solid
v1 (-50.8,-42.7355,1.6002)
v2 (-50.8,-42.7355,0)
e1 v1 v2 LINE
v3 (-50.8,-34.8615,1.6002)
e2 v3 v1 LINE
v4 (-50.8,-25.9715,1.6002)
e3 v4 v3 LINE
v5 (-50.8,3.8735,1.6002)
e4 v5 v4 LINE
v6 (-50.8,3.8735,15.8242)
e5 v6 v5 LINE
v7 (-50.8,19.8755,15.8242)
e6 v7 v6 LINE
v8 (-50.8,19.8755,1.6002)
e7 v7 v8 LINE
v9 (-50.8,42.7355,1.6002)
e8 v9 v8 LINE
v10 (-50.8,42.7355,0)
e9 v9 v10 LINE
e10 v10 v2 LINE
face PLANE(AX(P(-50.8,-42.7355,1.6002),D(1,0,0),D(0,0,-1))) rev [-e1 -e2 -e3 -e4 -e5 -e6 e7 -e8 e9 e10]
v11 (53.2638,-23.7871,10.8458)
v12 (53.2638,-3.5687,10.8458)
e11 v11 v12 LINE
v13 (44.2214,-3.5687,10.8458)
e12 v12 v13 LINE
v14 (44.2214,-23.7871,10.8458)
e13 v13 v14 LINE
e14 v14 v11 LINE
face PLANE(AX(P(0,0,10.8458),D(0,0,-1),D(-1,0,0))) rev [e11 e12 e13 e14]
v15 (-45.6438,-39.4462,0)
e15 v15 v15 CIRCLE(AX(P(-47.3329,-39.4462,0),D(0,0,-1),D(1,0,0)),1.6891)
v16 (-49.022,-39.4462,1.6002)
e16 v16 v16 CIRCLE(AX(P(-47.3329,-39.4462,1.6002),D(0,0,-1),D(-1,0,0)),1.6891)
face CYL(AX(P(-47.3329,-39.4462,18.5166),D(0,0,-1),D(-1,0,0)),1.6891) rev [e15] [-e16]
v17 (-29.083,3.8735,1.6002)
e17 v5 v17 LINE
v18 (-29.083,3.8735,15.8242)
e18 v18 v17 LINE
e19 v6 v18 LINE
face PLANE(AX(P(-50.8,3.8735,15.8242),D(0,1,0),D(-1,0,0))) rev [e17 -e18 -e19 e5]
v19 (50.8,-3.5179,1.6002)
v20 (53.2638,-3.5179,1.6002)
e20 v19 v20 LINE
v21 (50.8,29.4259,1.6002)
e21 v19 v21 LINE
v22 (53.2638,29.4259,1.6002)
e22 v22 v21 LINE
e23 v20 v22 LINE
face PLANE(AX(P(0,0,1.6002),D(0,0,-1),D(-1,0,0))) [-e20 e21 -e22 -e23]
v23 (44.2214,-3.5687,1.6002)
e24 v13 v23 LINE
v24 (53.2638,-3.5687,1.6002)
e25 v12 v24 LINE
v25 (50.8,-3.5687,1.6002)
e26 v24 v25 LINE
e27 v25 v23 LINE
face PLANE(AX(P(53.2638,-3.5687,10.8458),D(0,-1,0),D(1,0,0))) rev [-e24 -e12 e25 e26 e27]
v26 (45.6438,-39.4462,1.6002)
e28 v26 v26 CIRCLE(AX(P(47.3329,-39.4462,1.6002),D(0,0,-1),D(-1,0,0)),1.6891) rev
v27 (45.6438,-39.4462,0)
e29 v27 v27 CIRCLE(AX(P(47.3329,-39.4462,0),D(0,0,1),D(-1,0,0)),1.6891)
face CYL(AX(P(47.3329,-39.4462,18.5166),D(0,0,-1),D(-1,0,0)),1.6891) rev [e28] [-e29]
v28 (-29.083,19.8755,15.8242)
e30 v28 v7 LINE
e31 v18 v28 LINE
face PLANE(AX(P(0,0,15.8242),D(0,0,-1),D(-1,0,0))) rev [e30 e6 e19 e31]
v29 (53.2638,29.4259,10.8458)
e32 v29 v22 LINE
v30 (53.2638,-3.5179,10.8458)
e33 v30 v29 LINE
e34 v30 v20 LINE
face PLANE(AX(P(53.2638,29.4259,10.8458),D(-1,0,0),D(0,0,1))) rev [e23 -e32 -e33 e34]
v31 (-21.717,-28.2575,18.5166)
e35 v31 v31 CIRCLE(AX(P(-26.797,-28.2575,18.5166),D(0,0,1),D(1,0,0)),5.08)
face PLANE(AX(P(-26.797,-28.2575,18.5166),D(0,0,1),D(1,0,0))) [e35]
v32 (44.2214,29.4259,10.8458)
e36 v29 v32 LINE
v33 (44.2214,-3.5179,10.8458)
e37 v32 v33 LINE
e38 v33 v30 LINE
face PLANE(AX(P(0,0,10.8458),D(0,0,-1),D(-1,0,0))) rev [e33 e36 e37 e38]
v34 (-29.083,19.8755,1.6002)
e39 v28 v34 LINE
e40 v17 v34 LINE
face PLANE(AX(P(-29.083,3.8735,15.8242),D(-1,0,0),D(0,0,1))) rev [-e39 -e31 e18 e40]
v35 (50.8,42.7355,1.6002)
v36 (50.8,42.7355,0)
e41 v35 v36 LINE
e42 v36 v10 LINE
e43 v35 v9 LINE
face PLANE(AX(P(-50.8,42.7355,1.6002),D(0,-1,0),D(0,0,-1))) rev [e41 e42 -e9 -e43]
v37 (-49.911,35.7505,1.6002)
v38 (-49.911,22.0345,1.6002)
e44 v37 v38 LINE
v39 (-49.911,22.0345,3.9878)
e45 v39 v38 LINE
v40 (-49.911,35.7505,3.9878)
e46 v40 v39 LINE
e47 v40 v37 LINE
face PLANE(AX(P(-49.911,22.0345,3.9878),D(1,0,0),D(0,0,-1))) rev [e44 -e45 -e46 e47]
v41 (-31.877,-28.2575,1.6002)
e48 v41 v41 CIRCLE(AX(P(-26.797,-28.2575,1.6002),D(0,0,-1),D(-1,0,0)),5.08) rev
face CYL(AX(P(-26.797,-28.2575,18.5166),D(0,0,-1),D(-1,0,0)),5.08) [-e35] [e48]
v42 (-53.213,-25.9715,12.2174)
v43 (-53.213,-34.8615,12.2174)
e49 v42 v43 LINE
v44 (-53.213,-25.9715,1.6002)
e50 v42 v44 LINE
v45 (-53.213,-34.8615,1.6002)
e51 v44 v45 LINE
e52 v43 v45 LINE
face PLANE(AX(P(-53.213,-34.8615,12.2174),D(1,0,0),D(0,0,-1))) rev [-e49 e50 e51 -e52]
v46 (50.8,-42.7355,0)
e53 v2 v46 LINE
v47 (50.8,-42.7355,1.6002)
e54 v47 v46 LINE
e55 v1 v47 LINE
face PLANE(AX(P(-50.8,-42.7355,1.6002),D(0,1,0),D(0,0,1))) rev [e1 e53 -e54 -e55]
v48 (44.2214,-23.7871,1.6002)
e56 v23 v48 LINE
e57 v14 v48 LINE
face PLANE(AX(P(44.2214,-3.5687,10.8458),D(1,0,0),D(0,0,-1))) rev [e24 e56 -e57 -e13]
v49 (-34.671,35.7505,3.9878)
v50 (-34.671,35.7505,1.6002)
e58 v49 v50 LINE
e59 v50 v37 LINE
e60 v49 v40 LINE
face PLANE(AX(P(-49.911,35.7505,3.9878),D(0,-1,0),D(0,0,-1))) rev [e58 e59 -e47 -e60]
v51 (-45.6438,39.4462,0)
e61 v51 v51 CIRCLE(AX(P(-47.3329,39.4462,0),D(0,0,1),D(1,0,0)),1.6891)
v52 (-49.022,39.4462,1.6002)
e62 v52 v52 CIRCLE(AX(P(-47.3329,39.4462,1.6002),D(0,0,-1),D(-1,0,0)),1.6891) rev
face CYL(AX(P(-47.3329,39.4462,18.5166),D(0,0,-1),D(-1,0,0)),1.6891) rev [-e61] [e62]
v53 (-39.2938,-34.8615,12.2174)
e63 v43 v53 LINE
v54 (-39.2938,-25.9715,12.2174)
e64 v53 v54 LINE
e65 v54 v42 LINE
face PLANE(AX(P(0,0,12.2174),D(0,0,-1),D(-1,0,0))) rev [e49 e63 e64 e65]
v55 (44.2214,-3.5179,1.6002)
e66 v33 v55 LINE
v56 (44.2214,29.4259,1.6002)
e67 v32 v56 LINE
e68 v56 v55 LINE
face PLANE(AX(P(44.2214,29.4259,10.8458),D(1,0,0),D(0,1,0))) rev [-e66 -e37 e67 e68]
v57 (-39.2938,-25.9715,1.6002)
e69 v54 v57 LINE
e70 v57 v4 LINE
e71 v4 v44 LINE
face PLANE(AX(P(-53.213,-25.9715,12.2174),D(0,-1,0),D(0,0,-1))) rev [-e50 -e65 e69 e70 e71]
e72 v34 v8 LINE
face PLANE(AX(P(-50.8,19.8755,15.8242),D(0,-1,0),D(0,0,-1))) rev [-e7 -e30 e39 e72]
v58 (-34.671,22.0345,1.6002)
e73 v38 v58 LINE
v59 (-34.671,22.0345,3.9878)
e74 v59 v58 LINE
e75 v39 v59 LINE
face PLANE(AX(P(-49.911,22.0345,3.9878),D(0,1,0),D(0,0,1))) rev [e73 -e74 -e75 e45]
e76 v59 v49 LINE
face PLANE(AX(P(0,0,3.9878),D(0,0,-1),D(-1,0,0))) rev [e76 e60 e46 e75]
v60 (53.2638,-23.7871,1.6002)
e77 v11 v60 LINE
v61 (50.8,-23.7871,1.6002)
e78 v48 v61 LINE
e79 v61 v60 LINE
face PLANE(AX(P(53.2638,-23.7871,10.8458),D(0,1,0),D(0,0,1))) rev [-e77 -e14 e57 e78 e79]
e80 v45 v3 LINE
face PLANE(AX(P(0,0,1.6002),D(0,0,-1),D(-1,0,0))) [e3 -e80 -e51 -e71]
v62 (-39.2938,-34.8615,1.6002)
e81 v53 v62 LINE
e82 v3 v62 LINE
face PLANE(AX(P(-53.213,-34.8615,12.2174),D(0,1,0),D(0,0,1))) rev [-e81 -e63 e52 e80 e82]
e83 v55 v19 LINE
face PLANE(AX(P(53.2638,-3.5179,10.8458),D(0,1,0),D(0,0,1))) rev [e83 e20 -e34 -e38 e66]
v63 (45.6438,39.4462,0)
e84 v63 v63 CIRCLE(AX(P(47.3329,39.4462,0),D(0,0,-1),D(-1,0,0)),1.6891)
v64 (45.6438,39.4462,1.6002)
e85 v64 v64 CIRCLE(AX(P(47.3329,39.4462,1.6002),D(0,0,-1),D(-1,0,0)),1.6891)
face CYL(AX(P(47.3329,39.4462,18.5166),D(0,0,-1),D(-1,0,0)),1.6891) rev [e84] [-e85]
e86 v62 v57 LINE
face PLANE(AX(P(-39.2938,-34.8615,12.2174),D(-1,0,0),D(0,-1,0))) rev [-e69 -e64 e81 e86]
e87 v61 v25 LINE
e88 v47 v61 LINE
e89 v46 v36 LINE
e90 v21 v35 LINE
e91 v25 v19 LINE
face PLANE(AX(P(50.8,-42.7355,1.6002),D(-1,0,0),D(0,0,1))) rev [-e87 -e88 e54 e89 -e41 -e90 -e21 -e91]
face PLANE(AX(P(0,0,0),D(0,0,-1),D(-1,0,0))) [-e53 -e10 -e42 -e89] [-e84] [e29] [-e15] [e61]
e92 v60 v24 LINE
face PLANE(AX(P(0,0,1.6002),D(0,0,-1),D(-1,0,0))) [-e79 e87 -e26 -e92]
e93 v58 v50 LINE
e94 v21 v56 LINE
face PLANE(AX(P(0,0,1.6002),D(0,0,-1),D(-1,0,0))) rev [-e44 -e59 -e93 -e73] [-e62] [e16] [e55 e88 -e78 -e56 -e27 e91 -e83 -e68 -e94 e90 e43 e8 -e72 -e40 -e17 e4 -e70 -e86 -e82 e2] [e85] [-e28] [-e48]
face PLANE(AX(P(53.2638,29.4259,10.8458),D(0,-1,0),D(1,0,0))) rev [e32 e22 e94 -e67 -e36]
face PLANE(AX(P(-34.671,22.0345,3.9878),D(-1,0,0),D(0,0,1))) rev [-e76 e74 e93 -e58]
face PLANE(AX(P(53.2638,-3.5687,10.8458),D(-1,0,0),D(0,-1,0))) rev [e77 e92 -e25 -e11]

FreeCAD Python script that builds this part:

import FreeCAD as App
import Part
import Sketcher
from FreeCAD import Vector
Q = App.Units.Quantity

doc = App.newDocument("Part")
params = doc.addObject("Spreadsheet::Sheet", "Params")
for row, (alias, value) in enumerate([
    ("sketch1_width", "4 in"),
    ("sketch1_height", "3.365 in"),
    ("pad1_length", "0.063 in"),
    ("sketch2_height", "0.63 in"),
    ("sketch2_width", "0.855 in"),
    ("pad2_length", "0.56 in"),
    ("sketch3_height", "0.35 in"),
    ("sketch3_width", "0.548 in"),
    ("pad3_length", "0.418 in"),
    ("sketch4_width", "0.356 in"),
    ("sketch4_height", "1.297 in"),
    ("sketch4_height2", "0.796 in"),
    ("pad4_length", "0.364 in"),
    ("sketch5_width", "0.6 in"),
    ("sketch5_height", "0.54 in"),
    ("pad5_length", "0.094 in"),
    ("sketch6_diameter", "0.4 in"),
    ("pad6_length", "0.666 in"),
    ("sketch7_diameter", "0.133 in"),
    ("sketch8_diameter", "0.133 in"),
], start=1):
    params.set(f"A{row}", alias)
    params.set(f"B{row}", "=" + value)
    params.setAlias(f"B{row}", alias)

body = doc.addObject("PartDesign::Body", "Body")

# Sketch on XY plane
sketch1 = body.newObject("Sketcher::SketchObject", "Sketch")
sketch1.AttachmentSupport = (doc.getObject("XY_Plane"), [""])
sketch1.MapMode = "FlatFace"
sketch1.addGeometry(Part.LineSegment(Vector(-50.8, 42.7355, 0), Vector(-50.8, -42.7355, 0)), False)
sketch1.addGeometry(Part.LineSegment(Vector(-50.8, -42.7355, 0), Vector(50.8, -42.7355, 0)), False)
sketch1.addGeometry(Part.LineSegment(Vector(50.8, -42.7355, 0), Vector(50.8, 42.7355, 0)), False)
sketch1.addGeometry(Part.LineSegment(Vector(50.8, 42.7355, 0), Vector(-50.8, 42.7355, 0)), False)
sketch1.addConstraint(Sketcher.Constraint("Coincident", 0, 2, 1, 1))
sketch1.addConstraint(Sketcher.Constraint("Coincident", 1, 2, 2, 1))
sketch1.addConstraint(Sketcher.Constraint("Coincident", 2, 2, 3, 1))
sketch1.addConstraint(Sketcher.Constraint("Coincident", 3, 2, 0, 1))
sketch1.addConstraint(Sketcher.Constraint("Vertical", 0))
sketch1.addConstraint(Sketcher.Constraint("Horizontal", 1))
sketch1.addConstraint(Sketcher.Constraint("Vertical", 2))
sketch1.addConstraint(Sketcher.Constraint("Horizontal", 3))
sketch1.addConstraint(Sketcher.Constraint("Symmetric", 0, 2, 2, 2, -1, 1))
sketch1.addConstraint(Sketcher.Constraint("DistanceX", 1, 1, 1, 2, Q("4 in")))
sketch1.addConstraint(Sketcher.Constraint("DistanceY", 0, 2, 0, 1, Q("3.365 in")))
sketch1.setExpression("Constraints[9]", "Params.sketch1_width")
sketch1.setExpression("Constraints[10]", "Params.sketch1_height")
pad1 = body.newObject("PartDesign::Pad", "Pad")
pad1.Profile = sketch1
pad1.setExpression("Length", "Params.pad1_length")

# Sketch on XY plane
sketch2 = body.newObject("Sketcher::SketchObject", "Sketch001")
sketch2.AttachmentSupport = (doc.getObject("XY_Plane"), [""])
sketch2.MapMode = "FlatFace"
sketch2.AttachmentOffset = App.Placement(Vector(0, 0, 0.063 * 25.4), App.Rotation())
sketch2.addGeometry(Part.LineSegment(Vector(-50.8, 19.8755, 0), Vector(-50.8, 3.8735, 0)), False)
sketch2.addGeometry(Part.LineSegment(Vector(-50.8, 3.8735, 0), Vector(-29.083, 3.8735, 0)), False)
sketch2.addGeometry(Part.LineSegment(Vector(-29.083, 3.8735, 0), Vector(-29.083, 19.8755, 0)), False)
sketch2.addGeometry(Part.LineSegment(Vector(-29.083, 19.8755, 0), Vector(-50.8, 19.8755, 0)), False)
sketch2.addConstraint(Sketcher.Constraint("Coincident", 0, 2, 1, 1))
sketch2.addConstraint(Sketcher.Constraint("Coincident", 1, 2, 2, 1))
sketch2.addConstraint(Sketcher.Constraint("Coincident", 2, 2, 3, 1))
sketch2.addConstraint(Sketcher.Constraint("Coincident", 3, 2, 0, 1))
sketch2.addConstraint(Sketcher.Constraint("Vertical", 0))
sketch2.addConstraint(Sketcher.Constraint("Horizontal", 1))
sketch2.addConstraint(Sketcher.Constraint("Vertical", 2))
sketch2.addConstraint(Sketcher.Constraint("Horizontal", 3))
sketch2.addConstraint(Sketcher.Constraint("DistanceX", 0, 2, -1, 1, Q("2 in")))
sketch2.addConstraint(Sketcher.Constraint("DistanceY", 0, 2, 0, 1, Q("0.63 in")))
sketch2.addConstraint(Sketcher.Constraint("DistanceX", 1, 1, 1, 2, Q("0.855 in")))
sketch2.addConstraint(Sketcher.Constraint("DistanceY", -1, 1, 0, 2, Q("0.1525 in")))
sketch2.setExpression("Constraints[9]", "Params.sketch2_height")
sketch2.setExpression("Constraints[10]", "Params.sketch2_width")
pad2 = body.newObject("PartDesign::Pad", "Pad001")
pad2.Profile = sketch2
pad2.setExpression("Length", "Params.pad2_length")

# Sketch on XY plane
sketch3 = body.newObject("Sketcher::SketchObject", "Sketch002")
sketch3.AttachmentSupport = (doc.getObject("XY_Plane"), [""])
sketch3.MapMode = "FlatFace"
sketch3.AttachmentOffset = App.Placement(Vector(0, 0, 0.063 * 25.4), App.Rotation())
sketch3.addGeometry(Part.LineSegment(Vector(-53.213, -25.9715, 0), Vector(-53.213, -34.8615, 0)), False)
sketch3.addGeometry(Part.LineSegment(Vector(-53.213, -34.8615, 0), Vector(-39.2938, -34.8615, 0)), False)
sketch3.addGeometry(Part.LineSegment(Vector(-39.2938, -34.8615, 0), Vector(-39.2938, -25.9715, 0)), False)
sketch3.addGeometry(Part.LineSegment(Vector(-39.2938, -25.9715, 0), Vector(-53.213, -25.9715, 0)), False)
sketch3.addConstraint(Sketcher.Constraint("Coincident", 0, 2, 1, 1))
sketch3.addConstraint(Sketcher.Constraint("Coincident", 1, 2, 2, 1))
sketch3.addConstraint(Sketcher.Constraint("Coincident", 2, 2, 3, 1))
sketch3.addConstraint(Sketcher.Constraint("Coincident", 3, 2, 0, 1))
sketch3.addConstraint(Sketcher.Constraint("Vertical", 0))
sketch3.addConstraint(Sketcher.Constraint("Horizontal", 1))
sketch3.addConstraint(Sketcher.Constraint("Vertical", 2))
sketch3.addConstraint(Sketcher.Constraint("Horizontal", 3))
sketch3.addConstraint(Sketcher.Constraint("DistanceY", 0, 2, 0, 1, Q("0.35 in")))
sketch3.addConstraint(Sketcher.Constraint("DistanceX", 1, 1, 1, 2, Q("0.548 in")))
sketch3.addConstraint(Sketcher.Constraint("DistanceX", 0, 2, -1, 1, Q("2.095 in")))
sketch3.addConstraint(Sketcher.Constraint("DistanceY", 0, 2, -1, 1, Q("1.3725 in")))
sketch3.setExpression("Constraints[8]", "Params.sketch3_height")
sketch3.setExpression("Constraints[9]", "Params.sketch3_width")
pad3 = body.newObject("PartDesign::Pad", "Pad002")
pad3.Profile = sketch3
pad3.setExpression("Length", "Params.pad3_length")

# Sketch on XY plane
sketch4 = body.newObject("Sketcher::SketchObject", "Sketch003")
sketch4.AttachmentSupport = (doc.getObject("XY_Plane"), [""])
sketch4.MapMode = "FlatFace"
sketch4.AttachmentOffset = App.Placement(Vector(0, 0, 0.063 * 25.4), App.Rotation())
sketch4.addGeometry(Part.LineSegment(Vector(44.2214, 29.4259, 0), Vector(44.2214, -3.5179, 0)), False)
sketch4.addGeometry(Part.LineSegment(Vector(44.2214, -3.5179, 0), Vector(53.2638, -3.5179, 0)), False)
sketch4.addGeometry(Part.LineSegment(Vector(53.2638, -3.5179, 0), Vector(53.2638, 29.4259, 0)), False)
sketch4.addGeometry(Part.LineSegment(Vector(53.2638, 29.4259, 0), Vector(44.2214, 29.4259, 0)), False)
sketch4.addGeometry(Part.LineSegment(Vector(44.2214, -3.5687, 0), Vector(44.2214, -23.7871, 0)), False)
sketch4.addGeometry(Part.LineSegment(Vector(44.2214, -23.7871, 0), Vector(53.2638, -23.7871, 0)), False)
sketch4.addGeometry(Part.LineSegment(Vector(53.2638, -23.7871, 0), Vector(53.2638, -3.5687, 0)), False)
sketch4.addGeometry(Part.LineSegment(Vector(53.2638, -3.5687, 0), Vector(44.2214, -3.5687, 0)), False)
sketch4.addConstraint(Sketcher.Constraint("Coincident", 0, 2, 1, 1))
sketch4.addConstraint(Sketcher.Constraint("Coincident", 1, 2, 2, 1))
sketch4.addConstraint(Sketcher.Constraint("Coincident", 2, 2, 3, 1))
sketch4.addConstraint(Sketcher.Constraint("Coincident", 3, 2, 0, 1))
sketch4.addConstraint(Sketcher.Constraint("Coincident", 4, 2, 5, 1))
sketch4.addConstraint(Sketcher.Constraint("Coincident", 5, 2, 6, 1))
sketch4.addConstraint(Sketcher.Constraint("Coincident", 6, 2, 7, 1))
sketch4.addConstraint(Sketcher.Constraint("Coincident", 7, 2, 4, 1))
sketch4.addConstraint(Sketcher.Constraint("Vertical", 0))
sketch4.addConstraint(Sketcher.Constraint("Horizontal", 1))
sketch4.addConstraint(Sketcher.Constraint("Vertical", 2))
sketch4.addConstraint(Sketcher.Constraint("Horizontal", 3))
sketch4.addConstraint(Sketcher.Constraint("Vertical", 4))
sketch4.addConstraint(Sketcher.Constraint("Horizontal", 5))
sketch4.addConstraint(Sketcher.Constraint("Vertical", 6))
sketch4.addConstraint(Sketcher.Constraint("Horizontal", 7))
sketch4.addConstraint(Sketcher.Constraint("Vertical", 3, 2, 4, 2))
sketch4.addConstraint(Sketcher.Constraint("Vertical", 2, 2, 5, 2))
sketch4.addConstraint(Sketcher.Constraint("DistanceX", 1, 1, 1, 2, Q("0.356 in")))
sketch4.addConstraint(Sketcher.Constraint("DistanceY", 0, 2, 0, 1, Q("1.297 in")))
sketch4.addConstraint(Sketcher.Constraint("DistanceY", 4, 2, 4, 1, Q("0.796 in")))
sketch4.addConstraint(Sketcher.Constraint("DistanceX", -1, 1, 0, 2, Q("1.741 in")))
sketch4.addConstraint(Sketcher.Constraint("DistanceY", 4, 2, 0, 2, Q("0.798 in")))
sketch4.addConstraint(Sketcher.Constraint("DistanceY", 0, 2, -1, 1, Q("0.1385 in")))
sketch4.setExpression("Constraints[18]", "Params.sketch4_width")
sketch4.setExpression("Constraints[19]", "Params.sketch4_height")
sketch4.setExpression("Constraints[20]", "Params.sketch4_height2")
pad4 = body.newObject("PartDesign::Pad", "Pad003")
pad4.Profile = sketch4
pad4.setExpression("Length", "Params.pad4_length")

# Sketch on XY plane
sketch5 = body.newObject("Sketcher::SketchObject", "Sketch004")
sketch5.AttachmentSupport = (doc.getObject("XY_Plane"), [""])
sketch5.MapMode = "FlatFace"
sketch5.AttachmentOffset = App.Placement(Vector(0, 0, 0.063 * 25.4), App.Rotation())
sketch5.addGeometry(Part.LineSegment(Vector(-49.911, 35.7505, 0), Vector(-49.911, 22.0345, 0)), False)
sketch5.addGeometry(Part.LineSegment(Vector(-49.911, 22.0345, 0), Vector(-34.671, 22.0345, 0)), False)
sketch5.addGeometry(Part.LineSegment(Vector(-34.671, 22.0345, 0), Vector(-34.671, 35.7505, 0)), False)
sketch5.addGeometry(Part.LineSegment(Vector(-34.671, 35.7505, 0), Vector(-49.911, 35.7505, 0)), False)
sketch5.addConstraint(Sketcher.Constraint("Coincident", 0, 2, 1, 1))
sketch5.addConstraint(Sketcher.Constraint("Coincident", 1, 2, 2, 1))
sketch5.addConstraint(Sketcher.Constraint("Coincident", 2, 2, 3, 1))
sketch5.addConstraint(Sketcher.Constraint("Coincident", 3, 2, 0, 1))
sketch5.addConstraint(Sketcher.Constraint("Vertical", 0))
sketch5.addConstraint(Sketcher.Constraint("Horizontal", 1))
sketch5.addConstraint(Sketcher.Constraint("Vertical", 2))
sketch5.addConstraint(Sketcher.Constraint("Horizontal", 3))
sketch5.addConstraint(Sketcher.Constraint("DistanceX", 1, 1, 1, 2, Q("0.6 in")))
sketch5.addConstraint(Sketcher.Constraint("DistanceY", 0, 2, 0, 1, Q("0.54 in")))
sketch5.addConstraint(Sketcher.Constraint("DistanceX", 0, 2, -1, 1, Q("1.965 in")))
sketch5.addConstraint(Sketcher.Constraint("DistanceY", -1, 1, 0, 2, Q("0.8675 in")))
sketch5.setExpression("Constraints[8]", "Params.sketch5_width")
sketch5.setExpression("Constraints[9]", "Params.sketch5_height")
pad5 = body.newObject("PartDesign::Pad", "Pad004")
pad5.Profile = sketch5
pad5.setExpression("Length", "Params.pad5_length")

# Sketch on XY plane
sketch6 = body.newObject("Sketcher::SketchObject", "Sketch005")
sketch6.AttachmentSupport = (doc.getObject("XY_Plane"), [""])
sketch6.MapMode = "FlatFace"
sketch6.AttachmentOffset = App.Placement(Vector(0, 0, 0.063 * 25.4), App.Rotation())
sketch6.addGeometry(Part.Circle(Vector(-26.797, -28.2575, 0), Vector(0, 0, 1), 5.08), False)
sketch6.addConstraint(Sketcher.Constraint("Diameter", 0, Q("0.4 in")))
sketch6.addConstraint(Sketcher.Constraint("DistanceX", 0, 3, -1, 1, Q("1.055 in")))
sketch6.addConstraint(Sketcher.Constraint("DistanceY", 0, 3, -1, 1, Q("1.1125 in")))
sketch6.setExpression("Constraints[0]", "Params.sketch6_diameter")
pad6 = body.newObject("PartDesign::Pad", "Pad005")
pad6.Profile = sketch6
pad6.setExpression("Length", "Params.pad6_length")

# Sketch on XY plane
sketch7 = body.newObject("Sketcher::SketchObject", "Sketch006")
sketch7.AttachmentSupport = (doc.getObject("XY_Plane"), [""])
sketch7.MapMode = "FlatFace"
sketch7.addGeometry(Part.Circle(Vector(47.3329, 39.4462, 0), Vector(0, 0, 1), 1.6891), False)
sketch7.addConstraint(Sketcher.Constraint("Diameter", 0, Q("0.133 in")))
sketch7.addConstraint(Sketcher.Constraint("DistanceY", -1, 1, 0, 3, Q("1.553 in")))
sketch7.addConstraint(Sketcher.Constraint("DistanceX", -1, 1, 0, 3, Q("1.8635 in")))
sketch7.setExpression("Constraints[0]", "Params.sketch7_diameter")
pocket1 = body.newObject("PartDesign::Pocket", "Pocket")
pocket1.Profile = sketch7
pocket1.Type = "ThroughAll"
pocket1.Reversed = True
doc.recompute()

mirrored = body.newObject("PartDesign::Mirrored", "Mirrored")
mirrored.Originals = [pocket1]
mirrored.MirrorPlane = (doc.getObject("YZ_Plane"), [""])
body.Tip = mirrored
doc.recompute()

mirrored2 = body.newObject("PartDesign::Mirrored", "Mirrored001")
mirrored2.Originals = [pocket1]
mirrored2.MirrorPlane = (doc.getObject("XZ_Plane"), [""])
body.Tip = mirrored2

# Sketch on XY plane
sketch8 = body.newObject("Sketcher::SketchObject", "Sketch007")
sketch8.AttachmentSupport = (doc.getObject("XY_Plane"), [""])
sketch8.MapMode = "FlatFace"
sketch8.addGeometry(Part.Circle(Vector(-47.3329, -39.4462, 0), Vector(0, 0, 1), 1.6891), False)
sketch8.addConstraint(Sketcher.Constraint("Diameter", 0, Q("0.133 in")))
sketch8.addConstraint(Sketcher.Constraint("DistanceY", 0, 3, -1, 1, Q("1.553 in")))
sketch8.addConstraint(Sketcher.Constraint("DistanceX", 0, 3, -1, 1, Q("1.8635 in")))
sketch8.setExpression("Constraints[0]", "Params.sketch8_diameter")
pocket2 = body.newObject("PartDesign::Pocket", "Pocket001")
pocket2.Profile = sketch8
pocket2.Type = "ThroughAll"
pocket2.Reversed = True

doc.recompute()
